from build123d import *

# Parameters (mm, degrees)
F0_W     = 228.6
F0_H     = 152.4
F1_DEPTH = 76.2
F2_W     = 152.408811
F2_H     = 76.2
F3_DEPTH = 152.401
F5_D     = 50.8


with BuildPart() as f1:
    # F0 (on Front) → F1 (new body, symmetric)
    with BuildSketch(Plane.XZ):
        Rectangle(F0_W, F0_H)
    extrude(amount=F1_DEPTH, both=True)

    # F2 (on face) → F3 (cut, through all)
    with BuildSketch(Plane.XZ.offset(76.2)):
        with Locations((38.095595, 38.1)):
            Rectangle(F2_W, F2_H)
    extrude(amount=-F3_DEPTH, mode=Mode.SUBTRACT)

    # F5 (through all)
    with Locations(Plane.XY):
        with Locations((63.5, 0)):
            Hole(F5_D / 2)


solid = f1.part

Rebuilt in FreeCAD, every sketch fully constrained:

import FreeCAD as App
import Part
import Sketcher
from FreeCAD import Vector
Q = App.Units.Quantity


def add_polygon(sketch, points):
    """Adds a closed chain of lines whose ends are joined by coincident constraints."""
    first, n = sketch.GeometryCount, len(points)
    for a, b in zip(points, points[1:] + points[:1]):
        sketch.addGeometry(Part.LineSegment(App.Vector(*a, 0), App.Vector(*b, 0)), False)
    for i in range(n):
        sketch.addConstraint(Sketcher.Constraint("Coincident", first + i, 2, first + (i + 1) % n, 1))

doc = App.newDocument("Part")
body = doc.addObject("PartDesign::Body", "Body")

sketch1 = body.newObject("Sketcher::SketchObject", "Sketch")
sketch1.AttachmentSupport = (doc.getObject("XZ_Plane"), [""])
sketch1.MapMode = "FlatFace"
add_polygon(sketch1, [(-114, 76), (-114, -76), (114, -76), (114, 76)])
sketch1.addConstraint([
    Sketcher.Constraint("Vertical", 0),
    Sketcher.Constraint("Horizontal", 1),
    Sketcher.Constraint("Vertical", 2),
    Sketcher.Constraint("Horizontal", 3),
    Sketcher.Constraint("Symmetric", 0, 2, 2, 2, -1, 1),
    Sketcher.Constraint("DistanceX", 1, 1, 1, 2, Q("9 in")),
    Sketcher.Constraint("DistanceY", 0, 2, 0, 1, Q("6 in")),
])
pad1 = body.newObject("PartDesign::Pad", "Pad")
pad1.Profile = sketch1
pad1.Length = Q("6 in")
pad1.Midplane = True

sketch2 = body.newObject("Sketcher::SketchObject", "Sketch001")
sketch2.AttachmentSupport = (doc.getObject("XZ_Plane"), [""])
sketch2.MapMode = "FlatFace"
sketch2.AttachmentOffset = App.Placement(Vector(0, 0, 3 * 25.4), App.Rotation())
add_polygon(sketch2, [(-38, 76), (-38, 0), (114, 0), (114, 76)])
sketch2.addConstraint([
    Sketcher.Constraint("Vertical", 0),
    Sketcher.Constraint("Horizontal", 1),
    Sketcher.Constraint("Vertical", 2),
    Sketcher.Constraint("Horizontal", 3),
    Sketcher.Constraint("PointOnObject", 0, 2, -1),
    Sketcher.Constraint("DistanceY", 0, 2, 0, 1, Q("3 in")),
    Sketcher.Constraint("DistanceX", -1, 1, 1, 2, Q("4.5 in")),
    Sketcher.Constraint("DistanceX", 1, 1, 1, 2, Q("152.408811 mm")),
])
pocket1 = body.newObject("PartDesign::Pocket", "Pocket")
pocket1.Profile = sketch2
pocket1.Type = "ThroughAll"

sketch3 = body.newObject("Sketcher::SketchObject", "Sketch002")
sketch3.AttachmentSupport = (doc.getObject("XY_Plane"), [""])
sketch3.MapMode = "FlatFace"
sketch3.addGeometry(Part.Circle(Vector(64, 0, 0), Vector(0, 0, 1), 25), False)
sketch3.addConstraint([
    Sketcher.Constraint("PointOnObject", 0, 3, -1),
    Sketcher.Constraint("Diameter", 0, Q("2 in")),
    Sketcher.Constraint("DistanceX", -1, 1, 0, 3, Q("2.5 in")),
])
doc.recompute()
hole = body.newObject("PartDesign::Hole", "Hole")
hole.Profile = sketch3
hole.ThreadType = "None"
hole.Diameter = Q("2 in")
hole.DepthType = "ThroughAll"

doc.recompute()
